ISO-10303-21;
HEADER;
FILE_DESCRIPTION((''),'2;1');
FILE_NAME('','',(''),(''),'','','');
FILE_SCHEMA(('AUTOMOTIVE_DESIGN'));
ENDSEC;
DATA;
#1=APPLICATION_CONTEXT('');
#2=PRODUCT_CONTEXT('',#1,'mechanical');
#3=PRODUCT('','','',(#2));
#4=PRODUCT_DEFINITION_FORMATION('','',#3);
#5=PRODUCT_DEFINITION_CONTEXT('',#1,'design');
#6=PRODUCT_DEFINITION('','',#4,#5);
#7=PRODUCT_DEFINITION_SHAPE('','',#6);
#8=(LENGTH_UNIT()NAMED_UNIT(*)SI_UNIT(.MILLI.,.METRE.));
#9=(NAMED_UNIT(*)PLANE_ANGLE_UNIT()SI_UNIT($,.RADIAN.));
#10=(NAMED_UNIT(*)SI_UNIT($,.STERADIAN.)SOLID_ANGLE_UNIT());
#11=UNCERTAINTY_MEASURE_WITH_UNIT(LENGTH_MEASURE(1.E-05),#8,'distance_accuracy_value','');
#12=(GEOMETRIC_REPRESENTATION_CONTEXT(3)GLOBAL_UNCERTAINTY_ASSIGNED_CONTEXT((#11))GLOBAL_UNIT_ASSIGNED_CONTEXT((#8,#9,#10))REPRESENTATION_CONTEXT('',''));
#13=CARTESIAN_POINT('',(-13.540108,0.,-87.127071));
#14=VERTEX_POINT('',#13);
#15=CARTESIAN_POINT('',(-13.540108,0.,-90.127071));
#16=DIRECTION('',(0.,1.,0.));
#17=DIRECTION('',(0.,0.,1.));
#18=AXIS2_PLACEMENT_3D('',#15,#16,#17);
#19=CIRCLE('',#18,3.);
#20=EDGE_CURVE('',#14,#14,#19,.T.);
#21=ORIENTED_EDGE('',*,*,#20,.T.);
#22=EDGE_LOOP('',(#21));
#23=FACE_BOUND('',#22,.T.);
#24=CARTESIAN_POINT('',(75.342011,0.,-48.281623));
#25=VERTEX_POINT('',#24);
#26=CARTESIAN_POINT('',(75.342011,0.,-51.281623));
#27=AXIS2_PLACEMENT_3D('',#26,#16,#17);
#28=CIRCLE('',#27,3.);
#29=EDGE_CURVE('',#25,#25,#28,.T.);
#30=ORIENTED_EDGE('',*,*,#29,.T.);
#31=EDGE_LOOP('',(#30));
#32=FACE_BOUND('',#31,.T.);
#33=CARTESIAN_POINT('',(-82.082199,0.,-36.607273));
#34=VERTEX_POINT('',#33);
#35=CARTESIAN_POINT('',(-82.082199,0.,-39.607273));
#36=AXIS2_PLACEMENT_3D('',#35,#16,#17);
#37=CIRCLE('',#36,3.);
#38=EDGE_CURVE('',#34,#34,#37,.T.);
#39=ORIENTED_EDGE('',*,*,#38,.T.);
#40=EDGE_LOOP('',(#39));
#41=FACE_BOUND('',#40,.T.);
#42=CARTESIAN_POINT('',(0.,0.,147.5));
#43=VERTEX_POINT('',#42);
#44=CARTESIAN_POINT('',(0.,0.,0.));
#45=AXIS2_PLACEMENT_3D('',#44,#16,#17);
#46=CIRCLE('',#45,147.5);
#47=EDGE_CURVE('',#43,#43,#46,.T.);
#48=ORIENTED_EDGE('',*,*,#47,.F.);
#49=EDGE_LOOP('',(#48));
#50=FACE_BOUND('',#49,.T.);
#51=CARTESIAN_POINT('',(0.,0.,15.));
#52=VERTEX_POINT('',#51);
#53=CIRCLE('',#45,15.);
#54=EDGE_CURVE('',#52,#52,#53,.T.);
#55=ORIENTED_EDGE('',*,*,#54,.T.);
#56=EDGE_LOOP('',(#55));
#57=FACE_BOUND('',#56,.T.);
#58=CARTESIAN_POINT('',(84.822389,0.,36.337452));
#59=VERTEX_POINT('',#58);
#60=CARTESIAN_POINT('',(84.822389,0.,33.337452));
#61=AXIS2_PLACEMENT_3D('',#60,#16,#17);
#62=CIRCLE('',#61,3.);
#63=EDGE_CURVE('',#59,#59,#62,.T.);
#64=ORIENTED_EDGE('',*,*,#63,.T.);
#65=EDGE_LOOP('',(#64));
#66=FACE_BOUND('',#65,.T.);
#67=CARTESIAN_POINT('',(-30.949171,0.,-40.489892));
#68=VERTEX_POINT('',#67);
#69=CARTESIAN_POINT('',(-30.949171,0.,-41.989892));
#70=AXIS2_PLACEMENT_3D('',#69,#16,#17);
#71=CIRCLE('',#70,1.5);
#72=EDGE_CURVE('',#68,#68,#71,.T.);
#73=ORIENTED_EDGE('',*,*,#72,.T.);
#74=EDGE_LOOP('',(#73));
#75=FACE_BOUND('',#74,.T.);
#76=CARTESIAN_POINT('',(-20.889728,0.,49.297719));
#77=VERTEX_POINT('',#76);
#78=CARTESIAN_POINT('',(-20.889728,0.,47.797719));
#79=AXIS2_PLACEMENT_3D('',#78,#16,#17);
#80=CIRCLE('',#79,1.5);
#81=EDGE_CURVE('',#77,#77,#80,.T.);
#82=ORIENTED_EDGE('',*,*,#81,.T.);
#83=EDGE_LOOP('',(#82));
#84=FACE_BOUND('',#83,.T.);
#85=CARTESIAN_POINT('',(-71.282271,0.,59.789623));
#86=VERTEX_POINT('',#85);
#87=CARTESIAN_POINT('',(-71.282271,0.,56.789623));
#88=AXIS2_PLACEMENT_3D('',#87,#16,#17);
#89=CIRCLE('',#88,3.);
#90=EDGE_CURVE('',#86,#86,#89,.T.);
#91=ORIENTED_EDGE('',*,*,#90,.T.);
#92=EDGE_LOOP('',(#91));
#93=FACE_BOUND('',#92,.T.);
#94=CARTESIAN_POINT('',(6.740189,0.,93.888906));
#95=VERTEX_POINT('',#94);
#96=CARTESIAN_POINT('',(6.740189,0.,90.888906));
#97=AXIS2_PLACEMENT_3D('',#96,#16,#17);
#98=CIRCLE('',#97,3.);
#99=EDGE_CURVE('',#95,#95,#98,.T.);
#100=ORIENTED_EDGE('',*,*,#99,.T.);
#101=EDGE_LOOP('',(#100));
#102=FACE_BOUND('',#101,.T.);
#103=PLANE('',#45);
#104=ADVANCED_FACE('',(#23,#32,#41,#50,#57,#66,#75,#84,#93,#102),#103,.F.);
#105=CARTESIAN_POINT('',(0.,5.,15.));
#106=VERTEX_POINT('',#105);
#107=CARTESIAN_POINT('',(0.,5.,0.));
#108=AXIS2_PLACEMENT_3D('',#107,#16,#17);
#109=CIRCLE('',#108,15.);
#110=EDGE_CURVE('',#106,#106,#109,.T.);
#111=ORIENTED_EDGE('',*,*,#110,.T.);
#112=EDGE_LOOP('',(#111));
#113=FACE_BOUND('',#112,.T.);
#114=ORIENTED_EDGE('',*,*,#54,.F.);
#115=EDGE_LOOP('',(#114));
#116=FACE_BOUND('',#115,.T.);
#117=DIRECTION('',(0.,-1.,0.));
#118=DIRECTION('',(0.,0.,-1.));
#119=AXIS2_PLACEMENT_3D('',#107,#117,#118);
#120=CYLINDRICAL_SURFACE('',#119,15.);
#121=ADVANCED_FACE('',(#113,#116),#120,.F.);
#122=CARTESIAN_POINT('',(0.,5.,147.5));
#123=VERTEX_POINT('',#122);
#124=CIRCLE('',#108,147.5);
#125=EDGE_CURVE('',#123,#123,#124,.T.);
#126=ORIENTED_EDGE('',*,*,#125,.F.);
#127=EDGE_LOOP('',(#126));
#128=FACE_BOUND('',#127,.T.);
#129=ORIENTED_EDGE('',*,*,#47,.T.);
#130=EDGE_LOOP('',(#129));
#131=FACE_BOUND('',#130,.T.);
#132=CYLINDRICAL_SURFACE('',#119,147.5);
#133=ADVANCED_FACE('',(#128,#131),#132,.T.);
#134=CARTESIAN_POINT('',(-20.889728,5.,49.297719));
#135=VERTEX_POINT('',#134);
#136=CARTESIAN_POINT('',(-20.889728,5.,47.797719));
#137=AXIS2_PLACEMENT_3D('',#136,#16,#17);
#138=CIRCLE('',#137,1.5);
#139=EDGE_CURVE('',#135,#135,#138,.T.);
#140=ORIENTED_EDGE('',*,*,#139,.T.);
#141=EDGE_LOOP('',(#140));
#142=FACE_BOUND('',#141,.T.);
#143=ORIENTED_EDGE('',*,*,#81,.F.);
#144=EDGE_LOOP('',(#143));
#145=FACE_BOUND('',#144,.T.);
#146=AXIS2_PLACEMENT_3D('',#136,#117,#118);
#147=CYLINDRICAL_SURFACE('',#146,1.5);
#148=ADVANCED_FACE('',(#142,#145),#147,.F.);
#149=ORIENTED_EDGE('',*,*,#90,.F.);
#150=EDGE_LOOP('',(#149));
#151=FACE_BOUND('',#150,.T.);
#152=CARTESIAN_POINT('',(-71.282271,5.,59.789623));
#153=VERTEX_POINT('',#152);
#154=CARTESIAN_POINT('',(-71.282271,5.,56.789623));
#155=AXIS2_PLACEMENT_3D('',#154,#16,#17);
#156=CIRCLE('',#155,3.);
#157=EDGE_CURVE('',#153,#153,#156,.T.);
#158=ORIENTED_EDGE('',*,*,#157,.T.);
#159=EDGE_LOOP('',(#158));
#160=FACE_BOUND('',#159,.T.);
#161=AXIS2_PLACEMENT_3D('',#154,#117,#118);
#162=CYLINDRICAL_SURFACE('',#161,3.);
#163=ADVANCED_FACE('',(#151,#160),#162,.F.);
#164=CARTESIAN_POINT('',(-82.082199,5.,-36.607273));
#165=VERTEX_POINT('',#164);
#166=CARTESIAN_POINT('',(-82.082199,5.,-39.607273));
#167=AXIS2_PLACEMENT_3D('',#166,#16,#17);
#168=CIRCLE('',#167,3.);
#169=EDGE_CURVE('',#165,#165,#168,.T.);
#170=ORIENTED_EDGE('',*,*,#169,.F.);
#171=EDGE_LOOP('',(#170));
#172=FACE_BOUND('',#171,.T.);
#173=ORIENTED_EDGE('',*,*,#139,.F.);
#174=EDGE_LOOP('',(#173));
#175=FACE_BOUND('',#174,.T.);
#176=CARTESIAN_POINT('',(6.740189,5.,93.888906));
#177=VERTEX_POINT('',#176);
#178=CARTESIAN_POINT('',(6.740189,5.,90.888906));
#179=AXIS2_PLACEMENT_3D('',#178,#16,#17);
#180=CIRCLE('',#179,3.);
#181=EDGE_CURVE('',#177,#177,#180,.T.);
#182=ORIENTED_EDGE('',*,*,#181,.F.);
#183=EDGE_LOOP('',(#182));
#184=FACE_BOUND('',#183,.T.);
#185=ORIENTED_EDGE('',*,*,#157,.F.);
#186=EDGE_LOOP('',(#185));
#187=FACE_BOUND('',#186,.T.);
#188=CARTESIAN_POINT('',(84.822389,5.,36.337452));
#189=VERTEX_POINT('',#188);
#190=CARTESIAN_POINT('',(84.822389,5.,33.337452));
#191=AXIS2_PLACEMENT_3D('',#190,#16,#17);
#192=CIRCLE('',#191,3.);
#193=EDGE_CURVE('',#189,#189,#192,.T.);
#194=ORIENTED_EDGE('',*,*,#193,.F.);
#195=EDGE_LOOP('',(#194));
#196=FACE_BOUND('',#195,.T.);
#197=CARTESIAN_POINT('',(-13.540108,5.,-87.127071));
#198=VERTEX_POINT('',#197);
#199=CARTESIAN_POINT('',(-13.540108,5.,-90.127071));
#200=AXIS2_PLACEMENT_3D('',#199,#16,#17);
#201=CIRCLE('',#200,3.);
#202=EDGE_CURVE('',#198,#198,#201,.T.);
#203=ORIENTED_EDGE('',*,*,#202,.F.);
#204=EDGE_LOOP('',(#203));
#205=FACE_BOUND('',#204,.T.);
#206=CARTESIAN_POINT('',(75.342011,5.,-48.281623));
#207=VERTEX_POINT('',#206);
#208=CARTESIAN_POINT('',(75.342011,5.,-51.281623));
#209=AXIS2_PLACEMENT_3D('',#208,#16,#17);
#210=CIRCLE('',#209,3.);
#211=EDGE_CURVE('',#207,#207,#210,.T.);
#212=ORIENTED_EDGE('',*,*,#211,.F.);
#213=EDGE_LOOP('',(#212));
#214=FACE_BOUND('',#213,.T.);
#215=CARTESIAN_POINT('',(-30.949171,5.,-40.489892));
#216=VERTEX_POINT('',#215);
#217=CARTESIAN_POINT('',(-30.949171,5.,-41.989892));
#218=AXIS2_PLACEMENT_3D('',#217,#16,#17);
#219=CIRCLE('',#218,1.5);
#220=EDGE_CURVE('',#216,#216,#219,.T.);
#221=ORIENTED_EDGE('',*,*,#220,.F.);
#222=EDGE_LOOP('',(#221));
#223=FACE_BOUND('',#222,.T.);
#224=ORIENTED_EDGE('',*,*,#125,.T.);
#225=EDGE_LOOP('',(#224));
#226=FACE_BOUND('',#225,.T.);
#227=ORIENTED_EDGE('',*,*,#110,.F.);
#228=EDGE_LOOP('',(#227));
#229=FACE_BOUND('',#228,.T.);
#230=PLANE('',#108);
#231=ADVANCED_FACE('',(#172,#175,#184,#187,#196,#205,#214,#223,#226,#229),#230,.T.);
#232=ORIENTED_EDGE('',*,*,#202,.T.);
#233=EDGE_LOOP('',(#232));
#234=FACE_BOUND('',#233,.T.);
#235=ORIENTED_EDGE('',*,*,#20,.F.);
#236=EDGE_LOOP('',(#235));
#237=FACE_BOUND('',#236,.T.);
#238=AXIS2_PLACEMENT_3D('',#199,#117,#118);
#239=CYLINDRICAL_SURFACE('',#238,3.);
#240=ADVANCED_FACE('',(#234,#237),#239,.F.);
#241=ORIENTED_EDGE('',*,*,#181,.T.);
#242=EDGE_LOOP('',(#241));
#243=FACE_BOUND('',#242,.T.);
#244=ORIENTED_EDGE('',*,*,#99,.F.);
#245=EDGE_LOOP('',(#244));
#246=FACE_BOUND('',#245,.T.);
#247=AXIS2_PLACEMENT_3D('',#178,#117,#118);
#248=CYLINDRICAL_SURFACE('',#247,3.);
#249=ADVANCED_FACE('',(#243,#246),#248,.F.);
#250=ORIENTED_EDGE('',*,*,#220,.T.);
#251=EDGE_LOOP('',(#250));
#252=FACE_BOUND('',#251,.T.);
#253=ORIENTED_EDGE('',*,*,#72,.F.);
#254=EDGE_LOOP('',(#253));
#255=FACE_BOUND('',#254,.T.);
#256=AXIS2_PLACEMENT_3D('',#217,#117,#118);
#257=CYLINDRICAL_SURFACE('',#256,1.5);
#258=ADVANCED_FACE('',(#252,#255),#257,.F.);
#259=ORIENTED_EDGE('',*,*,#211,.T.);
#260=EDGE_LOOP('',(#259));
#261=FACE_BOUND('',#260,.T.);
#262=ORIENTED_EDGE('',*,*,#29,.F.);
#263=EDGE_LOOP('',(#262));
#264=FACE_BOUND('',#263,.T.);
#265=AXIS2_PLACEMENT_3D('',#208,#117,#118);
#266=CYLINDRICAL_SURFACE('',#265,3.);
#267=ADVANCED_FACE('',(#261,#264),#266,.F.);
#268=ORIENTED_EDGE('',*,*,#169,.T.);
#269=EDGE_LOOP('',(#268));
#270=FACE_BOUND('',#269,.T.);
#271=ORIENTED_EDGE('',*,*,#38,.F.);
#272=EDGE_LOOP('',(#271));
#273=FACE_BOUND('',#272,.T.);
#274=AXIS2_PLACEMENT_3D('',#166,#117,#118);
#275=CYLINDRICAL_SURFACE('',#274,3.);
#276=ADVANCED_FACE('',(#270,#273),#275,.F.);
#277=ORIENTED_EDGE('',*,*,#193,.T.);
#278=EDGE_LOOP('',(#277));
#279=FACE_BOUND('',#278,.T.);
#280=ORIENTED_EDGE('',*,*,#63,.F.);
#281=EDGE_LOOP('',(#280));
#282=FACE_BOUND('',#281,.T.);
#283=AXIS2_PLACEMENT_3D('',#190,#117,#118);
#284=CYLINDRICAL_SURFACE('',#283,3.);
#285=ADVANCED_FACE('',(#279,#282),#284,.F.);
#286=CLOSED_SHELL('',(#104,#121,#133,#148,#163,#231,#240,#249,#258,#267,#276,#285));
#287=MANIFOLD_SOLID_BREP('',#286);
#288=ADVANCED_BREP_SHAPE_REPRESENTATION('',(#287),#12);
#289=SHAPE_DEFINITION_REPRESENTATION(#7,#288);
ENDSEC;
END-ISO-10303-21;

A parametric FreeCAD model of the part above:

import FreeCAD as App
import Part
import Sketcher

doc = App.newDocument("Part")
body = doc.addObject("PartDesign::Body", "Body")

sketch1 = body.newObject("Sketcher::SketchObject", "Sketch")
sketch1.AttachmentSupport = (doc.getObject("XZ_Plane"), [""])
sketch1.MapMode = "FlatFace"
sketch1.addGeometry([
    Part.Circle(App.Vector(0, 0, 0), App.Vector(0, 0, 1), 147.5),
    Part.Circle(App.Vector(-82.1, -39.6, 0), App.Vector(0, 0, 1), 3),
    Part.Circle(App.Vector(-13.5, -90.1, 0), App.Vector(0, 0, 1), 3),
    Part.Circle(App.Vector(-30.9, -42, 0), App.Vector(0, 0, 1), 1.5),
    Part.Circle(App.Vector(0, 0, 0), App.Vector(0, 0, 1), 15),
    Part.Circle(App.Vector(-71.3, 56.8, 0), App.Vector(0, 0, 1), 3),
    Part.Circle(App.Vector(-20.9, 47.8, 0), App.Vector(0, 0, 1), 1.5),
    Part.Circle(App.Vector(75.3, -51.3, 0), App.Vector(0, 0, 1), 3),
    Part.Circle(App.Vector(6.7, 90.9, 0), App.Vector(0, 0, 1), 3),
    Part.Circle(App.Vector(84.8, 33.3, 0), App.Vector(0, 0, 1), 3),
], False)
sketch1.addConstraint([
    Sketcher.Constraint("Coincident", 0, 3, -1, 1),
    Sketcher.Constraint("Coincident", 4, 3, -1, 1),
    Sketcher.Constraint("Equal", 1, 2),
    Sketcher.Constraint("Equal", 2, 5),
    Sketcher.Constraint("Equal", 3, 6),
    Sketcher.Constraint("Equal", 5, 7),
    Sketcher.Constraint("Equal", 7, 8),
    Sketcher.Constraint("Equal", 8, 9),
    Sketcher.Constraint("Diameter", 0, 295.0),
    Sketcher.Constraint("Diameter", 1, 6.0),
    Sketcher.Constraint("Diameter", 3, 3.0),
    Sketcher.Constraint("Diameter", 4, 30.0),
    Sketcher.Constraint("DistanceX", 1, 3, -1, 1, 82.082199),
    Sketcher.Constraint("DistanceX", 5, 3, 3, 3, 40.3331),
    Sketcher.Constraint("DistanceY", 3, 3, 8, 3, 132.878798),
    Sketcher.Constraint("DistanceX", 8, 3, 9, 3, 78.082201),
    Sketcher.Constraint("DistanceX", 2, 3, -1, 1, 13.540108),
    Sketcher.Constraint("DistanceY", 2, 3, -1, 1, 90.127071),
    Sketcher.Constraint("DistanceX", 3, 3, -1, 1, 30.949171),
    Sketcher.Constraint("DistanceY", -1, 1, 6, 3, 47.797719),
    Sketcher.Constraint("DistanceX", -1, 1, 7, 3, 75.342011),
    Sketcher.Constraint("DistanceX", -1, 1, 8, 3, 6.740189),
    Sketcher.Constraint("DistanceY", -1, 1, 9, 3, 33.337452),
    Sketcher.Constraint("DistanceY", 2, 3, 3, 3, 48.137179),
    Sketcher.Constraint("DistanceY", 3, 3, 1, 3, 2.382619),
    Sketcher.Constraint("DistanceX", 1, 3, 6, 3, 61.192471),
    Sketcher.Constraint("DistanceY", 2, 3, 7, 3, 38.845448),
    Sketcher.Constraint("DistanceY", -1, 1, 5, 3, 56.789623),
])
pad1 = body.newObject("PartDesign::Pad", "Pad")
pad1.Profile = sketch1
pad1.Length = 5
pad1.Reversed = True

doc.recompute()
